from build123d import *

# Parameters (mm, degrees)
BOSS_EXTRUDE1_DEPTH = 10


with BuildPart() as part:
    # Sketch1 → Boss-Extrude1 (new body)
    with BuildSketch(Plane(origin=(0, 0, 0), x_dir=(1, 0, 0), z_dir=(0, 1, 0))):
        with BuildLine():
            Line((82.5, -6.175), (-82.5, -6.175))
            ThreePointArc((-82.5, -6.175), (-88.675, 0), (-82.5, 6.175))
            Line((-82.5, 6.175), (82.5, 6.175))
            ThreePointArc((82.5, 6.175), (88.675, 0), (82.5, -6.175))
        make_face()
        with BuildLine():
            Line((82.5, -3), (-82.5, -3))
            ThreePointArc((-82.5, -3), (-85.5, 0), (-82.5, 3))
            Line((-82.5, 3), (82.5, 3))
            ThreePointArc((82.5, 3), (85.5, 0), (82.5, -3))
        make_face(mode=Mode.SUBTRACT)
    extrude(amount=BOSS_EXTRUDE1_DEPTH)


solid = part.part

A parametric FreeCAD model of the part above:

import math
import FreeCAD as App
import Part
import Sketcher
from FreeCAD import Vector
Q = App.Units.Quantity

doc = App.newDocument("Part")
body = doc.addObject("PartDesign::Body", "Body")

sketch1 = body.newObject("Sketcher::SketchObject", "Sketch")
sketch1.AttachmentSupport = (doc.getObject("XZ_Plane"), [""])
sketch1.MapMode = "FlatFace"
sketch1.addGeometry([
    Part.LineSegment(Vector(-82.5, 6.2, 0), Vector(82.5, 6.2, 0)),
    Part.ArcOfCircle(Part.Circle(Vector(82.5, 0, 0), Vector(0, 0, 1), 6.2), math.radians(-90), math.radians(90)),
    Part.LineSegment(Vector(82.5, -6.2, 0), Vector(-82.5, -6.2, 0)),
    Part.ArcOfCircle(Part.Circle(Vector(-82.5, 0, 0), Vector(0, 0, 1), 6.2), math.radians(90), math.radians(270)),
    Part.LineSegment(Vector(82.5, 3, 0), Vector(-82.5, 3, 0)),
    Part.ArcOfCircle(Part.Circle(Vector(-82.5, 0, 0), Vector(0, 0, 1), 3), math.radians(90), math.radians(270)),
    Part.LineSegment(Vector(-82.5, -3, 0), Vector(82.5, -3, 0)),
    Part.ArcOfCircle(Part.Circle(Vector(82.5, 0, 0), Vector(0, 0, 1), 3), math.radians(-90), math.radians(90)),
], False)
sketch1.addConstraint([
    Sketcher.Constraint("Tangent", 0, 2, 1, 2),
    Sketcher.Constraint("Tangent", 1, 1, 2, 1),
    Sketcher.Constraint("Tangent", 2, 2, 3, 2),
    Sketcher.Constraint("Tangent", 3, 1, 0, 1),
    Sketcher.Constraint("Tangent", 4, 2, 5, 1),
    Sketcher.Constraint("Tangent", 5, 2, 6, 1),
    Sketcher.Constraint("Tangent", 6, 2, 7, 1),
    Sketcher.Constraint("Tangent", 7, 2, 4, 1),
    Sketcher.Constraint("Horizontal", 0),
    Sketcher.Constraint("Horizontal", 2),
    Sketcher.Constraint("Horizontal", 4),
    Sketcher.Constraint("Horizontal", 6),
    Sketcher.Constraint("Coincident", 5, 3, 3, 3),
    Sketcher.Constraint("Symmetric", 1, 3, 3, 3, -1, 1),
    Sketcher.Constraint("Vertical", 7, 3, 0, 2),
    Sketcher.Constraint("Radius", 5, Q("3 mm")),
    Sketcher.Constraint("DistanceX", 0, 1, 0, 2, Q("165 mm")),
    Sketcher.Constraint("Radius", 1, Q("6.175 mm")),
])
pad1 = body.newObject("PartDesign::Pad", "Pad")
pad1.Profile = sketch1
pad1.Length = 10
pad1.Reversed = True

doc.recompute()
